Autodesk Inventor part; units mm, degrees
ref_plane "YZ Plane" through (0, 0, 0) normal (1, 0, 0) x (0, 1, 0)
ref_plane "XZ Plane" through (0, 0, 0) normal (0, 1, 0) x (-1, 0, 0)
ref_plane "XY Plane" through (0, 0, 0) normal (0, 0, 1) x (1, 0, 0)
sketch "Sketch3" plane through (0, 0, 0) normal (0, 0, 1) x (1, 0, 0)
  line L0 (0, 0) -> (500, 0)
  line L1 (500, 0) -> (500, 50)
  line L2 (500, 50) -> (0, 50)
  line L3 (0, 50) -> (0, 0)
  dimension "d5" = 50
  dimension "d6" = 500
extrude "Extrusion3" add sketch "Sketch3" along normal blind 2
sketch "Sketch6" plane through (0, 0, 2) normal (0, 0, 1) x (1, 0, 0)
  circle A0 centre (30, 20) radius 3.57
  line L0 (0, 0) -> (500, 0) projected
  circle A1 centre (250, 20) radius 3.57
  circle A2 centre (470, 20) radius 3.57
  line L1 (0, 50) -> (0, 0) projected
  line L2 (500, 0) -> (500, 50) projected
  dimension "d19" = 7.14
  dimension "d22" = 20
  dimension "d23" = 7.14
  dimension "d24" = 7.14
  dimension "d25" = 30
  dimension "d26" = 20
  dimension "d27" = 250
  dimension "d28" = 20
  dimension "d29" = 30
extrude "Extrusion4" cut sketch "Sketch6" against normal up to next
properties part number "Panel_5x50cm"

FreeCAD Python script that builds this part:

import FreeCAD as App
import Part
import Sketcher
from FreeCAD import Vector

doc = App.newDocument("Part")
body = doc.addObject("PartDesign::Body", "Body")

sketch1 = body.newObject("Sketcher::SketchObject", "Sketch")
sketch1.AttachmentSupport = (doc.getObject("XY_Plane"), [""])
sketch1.MapMode = "FlatFace"
sketch1.addGeometry([
    Part.LineSegment(Vector(0, 50, 0), Vector(0, 0, 0)),
    Part.LineSegment(Vector(0, 0, 0), Vector(500, 0, 0)),
    Part.LineSegment(Vector(500, 0, 0), Vector(500, 50, 0)),
    Part.LineSegment(Vector(500, 50, 0), Vector(0, 50, 0)),
], False)
sketch1.addConstraint([
    Sketcher.Constraint("Coincident", 0, 2, 1, 1),
    Sketcher.Constraint("Coincident", 1, 2, 2, 1),
    Sketcher.Constraint("Coincident", 2, 2, 3, 1),
    Sketcher.Constraint("Coincident", 3, 2, 0, 1),
    Sketcher.Constraint("Vertical", 0),
    Sketcher.Constraint("Horizontal", 1),
    Sketcher.Constraint("Vertical", 2),
    Sketcher.Constraint("Horizontal", 3),
    Sketcher.Constraint("Coincident", 0, 2, -1, 1),
    Sketcher.Constraint("DistanceX", 1, 1, 1, 2, 500.0),
    Sketcher.Constraint("DistanceY", 0, 2, 0, 1, 50.0),
])
pad1 = body.newObject("PartDesign::Pad", "Pad")
pad1.Profile = sketch1
pad1.Length = 2

sketch2 = body.newObject("Sketcher::SketchObject", "Sketch001")
sketch2.AttachmentSupport = (doc.getObject("XY_Plane"), [""])
sketch2.MapMode = "FlatFace"
sketch2.AttachmentOffset = App.Placement(Vector(0, 0, 2), App.Rotation())
sketch2.addGeometry([
    Part.Circle(Vector(30, 20, 0), Vector(0, 0, 1), 3.6),
    Part.Circle(Vector(250, 20, 0), Vector(0, 0, 1), 3.6),
    Part.Circle(Vector(470, 20, 0), Vector(0, 0, 1), 3.6),
], False)
sketch2.addConstraint([
    Sketcher.Constraint("Equal", 0, 1),
    Sketcher.Constraint("Equal", 1, 2),
    Sketcher.Constraint("Horizontal", 0, 3, 1, 3),
    Sketcher.Constraint("Horizontal", 1, 3, 2, 3),
    Sketcher.Constraint("Diameter", 0, 7.14),
    Sketcher.Constraint("DistanceX", -1, 1, 0, 3, 30.0),
    Sketcher.Constraint("DistanceY", -1, 1, 0, 3, 20.0),
    Sketcher.Constraint("DistanceX", -1, 1, 1, 3, 250.0),
    Sketcher.Constraint("DistanceX", -1, 1, 2, 3, 470.0),
])
pocket1 = body.newObject("PartDesign::Pocket", "Pocket")
pocket1.Profile = sketch2
pocket1.Length = 2

doc.recompute()
